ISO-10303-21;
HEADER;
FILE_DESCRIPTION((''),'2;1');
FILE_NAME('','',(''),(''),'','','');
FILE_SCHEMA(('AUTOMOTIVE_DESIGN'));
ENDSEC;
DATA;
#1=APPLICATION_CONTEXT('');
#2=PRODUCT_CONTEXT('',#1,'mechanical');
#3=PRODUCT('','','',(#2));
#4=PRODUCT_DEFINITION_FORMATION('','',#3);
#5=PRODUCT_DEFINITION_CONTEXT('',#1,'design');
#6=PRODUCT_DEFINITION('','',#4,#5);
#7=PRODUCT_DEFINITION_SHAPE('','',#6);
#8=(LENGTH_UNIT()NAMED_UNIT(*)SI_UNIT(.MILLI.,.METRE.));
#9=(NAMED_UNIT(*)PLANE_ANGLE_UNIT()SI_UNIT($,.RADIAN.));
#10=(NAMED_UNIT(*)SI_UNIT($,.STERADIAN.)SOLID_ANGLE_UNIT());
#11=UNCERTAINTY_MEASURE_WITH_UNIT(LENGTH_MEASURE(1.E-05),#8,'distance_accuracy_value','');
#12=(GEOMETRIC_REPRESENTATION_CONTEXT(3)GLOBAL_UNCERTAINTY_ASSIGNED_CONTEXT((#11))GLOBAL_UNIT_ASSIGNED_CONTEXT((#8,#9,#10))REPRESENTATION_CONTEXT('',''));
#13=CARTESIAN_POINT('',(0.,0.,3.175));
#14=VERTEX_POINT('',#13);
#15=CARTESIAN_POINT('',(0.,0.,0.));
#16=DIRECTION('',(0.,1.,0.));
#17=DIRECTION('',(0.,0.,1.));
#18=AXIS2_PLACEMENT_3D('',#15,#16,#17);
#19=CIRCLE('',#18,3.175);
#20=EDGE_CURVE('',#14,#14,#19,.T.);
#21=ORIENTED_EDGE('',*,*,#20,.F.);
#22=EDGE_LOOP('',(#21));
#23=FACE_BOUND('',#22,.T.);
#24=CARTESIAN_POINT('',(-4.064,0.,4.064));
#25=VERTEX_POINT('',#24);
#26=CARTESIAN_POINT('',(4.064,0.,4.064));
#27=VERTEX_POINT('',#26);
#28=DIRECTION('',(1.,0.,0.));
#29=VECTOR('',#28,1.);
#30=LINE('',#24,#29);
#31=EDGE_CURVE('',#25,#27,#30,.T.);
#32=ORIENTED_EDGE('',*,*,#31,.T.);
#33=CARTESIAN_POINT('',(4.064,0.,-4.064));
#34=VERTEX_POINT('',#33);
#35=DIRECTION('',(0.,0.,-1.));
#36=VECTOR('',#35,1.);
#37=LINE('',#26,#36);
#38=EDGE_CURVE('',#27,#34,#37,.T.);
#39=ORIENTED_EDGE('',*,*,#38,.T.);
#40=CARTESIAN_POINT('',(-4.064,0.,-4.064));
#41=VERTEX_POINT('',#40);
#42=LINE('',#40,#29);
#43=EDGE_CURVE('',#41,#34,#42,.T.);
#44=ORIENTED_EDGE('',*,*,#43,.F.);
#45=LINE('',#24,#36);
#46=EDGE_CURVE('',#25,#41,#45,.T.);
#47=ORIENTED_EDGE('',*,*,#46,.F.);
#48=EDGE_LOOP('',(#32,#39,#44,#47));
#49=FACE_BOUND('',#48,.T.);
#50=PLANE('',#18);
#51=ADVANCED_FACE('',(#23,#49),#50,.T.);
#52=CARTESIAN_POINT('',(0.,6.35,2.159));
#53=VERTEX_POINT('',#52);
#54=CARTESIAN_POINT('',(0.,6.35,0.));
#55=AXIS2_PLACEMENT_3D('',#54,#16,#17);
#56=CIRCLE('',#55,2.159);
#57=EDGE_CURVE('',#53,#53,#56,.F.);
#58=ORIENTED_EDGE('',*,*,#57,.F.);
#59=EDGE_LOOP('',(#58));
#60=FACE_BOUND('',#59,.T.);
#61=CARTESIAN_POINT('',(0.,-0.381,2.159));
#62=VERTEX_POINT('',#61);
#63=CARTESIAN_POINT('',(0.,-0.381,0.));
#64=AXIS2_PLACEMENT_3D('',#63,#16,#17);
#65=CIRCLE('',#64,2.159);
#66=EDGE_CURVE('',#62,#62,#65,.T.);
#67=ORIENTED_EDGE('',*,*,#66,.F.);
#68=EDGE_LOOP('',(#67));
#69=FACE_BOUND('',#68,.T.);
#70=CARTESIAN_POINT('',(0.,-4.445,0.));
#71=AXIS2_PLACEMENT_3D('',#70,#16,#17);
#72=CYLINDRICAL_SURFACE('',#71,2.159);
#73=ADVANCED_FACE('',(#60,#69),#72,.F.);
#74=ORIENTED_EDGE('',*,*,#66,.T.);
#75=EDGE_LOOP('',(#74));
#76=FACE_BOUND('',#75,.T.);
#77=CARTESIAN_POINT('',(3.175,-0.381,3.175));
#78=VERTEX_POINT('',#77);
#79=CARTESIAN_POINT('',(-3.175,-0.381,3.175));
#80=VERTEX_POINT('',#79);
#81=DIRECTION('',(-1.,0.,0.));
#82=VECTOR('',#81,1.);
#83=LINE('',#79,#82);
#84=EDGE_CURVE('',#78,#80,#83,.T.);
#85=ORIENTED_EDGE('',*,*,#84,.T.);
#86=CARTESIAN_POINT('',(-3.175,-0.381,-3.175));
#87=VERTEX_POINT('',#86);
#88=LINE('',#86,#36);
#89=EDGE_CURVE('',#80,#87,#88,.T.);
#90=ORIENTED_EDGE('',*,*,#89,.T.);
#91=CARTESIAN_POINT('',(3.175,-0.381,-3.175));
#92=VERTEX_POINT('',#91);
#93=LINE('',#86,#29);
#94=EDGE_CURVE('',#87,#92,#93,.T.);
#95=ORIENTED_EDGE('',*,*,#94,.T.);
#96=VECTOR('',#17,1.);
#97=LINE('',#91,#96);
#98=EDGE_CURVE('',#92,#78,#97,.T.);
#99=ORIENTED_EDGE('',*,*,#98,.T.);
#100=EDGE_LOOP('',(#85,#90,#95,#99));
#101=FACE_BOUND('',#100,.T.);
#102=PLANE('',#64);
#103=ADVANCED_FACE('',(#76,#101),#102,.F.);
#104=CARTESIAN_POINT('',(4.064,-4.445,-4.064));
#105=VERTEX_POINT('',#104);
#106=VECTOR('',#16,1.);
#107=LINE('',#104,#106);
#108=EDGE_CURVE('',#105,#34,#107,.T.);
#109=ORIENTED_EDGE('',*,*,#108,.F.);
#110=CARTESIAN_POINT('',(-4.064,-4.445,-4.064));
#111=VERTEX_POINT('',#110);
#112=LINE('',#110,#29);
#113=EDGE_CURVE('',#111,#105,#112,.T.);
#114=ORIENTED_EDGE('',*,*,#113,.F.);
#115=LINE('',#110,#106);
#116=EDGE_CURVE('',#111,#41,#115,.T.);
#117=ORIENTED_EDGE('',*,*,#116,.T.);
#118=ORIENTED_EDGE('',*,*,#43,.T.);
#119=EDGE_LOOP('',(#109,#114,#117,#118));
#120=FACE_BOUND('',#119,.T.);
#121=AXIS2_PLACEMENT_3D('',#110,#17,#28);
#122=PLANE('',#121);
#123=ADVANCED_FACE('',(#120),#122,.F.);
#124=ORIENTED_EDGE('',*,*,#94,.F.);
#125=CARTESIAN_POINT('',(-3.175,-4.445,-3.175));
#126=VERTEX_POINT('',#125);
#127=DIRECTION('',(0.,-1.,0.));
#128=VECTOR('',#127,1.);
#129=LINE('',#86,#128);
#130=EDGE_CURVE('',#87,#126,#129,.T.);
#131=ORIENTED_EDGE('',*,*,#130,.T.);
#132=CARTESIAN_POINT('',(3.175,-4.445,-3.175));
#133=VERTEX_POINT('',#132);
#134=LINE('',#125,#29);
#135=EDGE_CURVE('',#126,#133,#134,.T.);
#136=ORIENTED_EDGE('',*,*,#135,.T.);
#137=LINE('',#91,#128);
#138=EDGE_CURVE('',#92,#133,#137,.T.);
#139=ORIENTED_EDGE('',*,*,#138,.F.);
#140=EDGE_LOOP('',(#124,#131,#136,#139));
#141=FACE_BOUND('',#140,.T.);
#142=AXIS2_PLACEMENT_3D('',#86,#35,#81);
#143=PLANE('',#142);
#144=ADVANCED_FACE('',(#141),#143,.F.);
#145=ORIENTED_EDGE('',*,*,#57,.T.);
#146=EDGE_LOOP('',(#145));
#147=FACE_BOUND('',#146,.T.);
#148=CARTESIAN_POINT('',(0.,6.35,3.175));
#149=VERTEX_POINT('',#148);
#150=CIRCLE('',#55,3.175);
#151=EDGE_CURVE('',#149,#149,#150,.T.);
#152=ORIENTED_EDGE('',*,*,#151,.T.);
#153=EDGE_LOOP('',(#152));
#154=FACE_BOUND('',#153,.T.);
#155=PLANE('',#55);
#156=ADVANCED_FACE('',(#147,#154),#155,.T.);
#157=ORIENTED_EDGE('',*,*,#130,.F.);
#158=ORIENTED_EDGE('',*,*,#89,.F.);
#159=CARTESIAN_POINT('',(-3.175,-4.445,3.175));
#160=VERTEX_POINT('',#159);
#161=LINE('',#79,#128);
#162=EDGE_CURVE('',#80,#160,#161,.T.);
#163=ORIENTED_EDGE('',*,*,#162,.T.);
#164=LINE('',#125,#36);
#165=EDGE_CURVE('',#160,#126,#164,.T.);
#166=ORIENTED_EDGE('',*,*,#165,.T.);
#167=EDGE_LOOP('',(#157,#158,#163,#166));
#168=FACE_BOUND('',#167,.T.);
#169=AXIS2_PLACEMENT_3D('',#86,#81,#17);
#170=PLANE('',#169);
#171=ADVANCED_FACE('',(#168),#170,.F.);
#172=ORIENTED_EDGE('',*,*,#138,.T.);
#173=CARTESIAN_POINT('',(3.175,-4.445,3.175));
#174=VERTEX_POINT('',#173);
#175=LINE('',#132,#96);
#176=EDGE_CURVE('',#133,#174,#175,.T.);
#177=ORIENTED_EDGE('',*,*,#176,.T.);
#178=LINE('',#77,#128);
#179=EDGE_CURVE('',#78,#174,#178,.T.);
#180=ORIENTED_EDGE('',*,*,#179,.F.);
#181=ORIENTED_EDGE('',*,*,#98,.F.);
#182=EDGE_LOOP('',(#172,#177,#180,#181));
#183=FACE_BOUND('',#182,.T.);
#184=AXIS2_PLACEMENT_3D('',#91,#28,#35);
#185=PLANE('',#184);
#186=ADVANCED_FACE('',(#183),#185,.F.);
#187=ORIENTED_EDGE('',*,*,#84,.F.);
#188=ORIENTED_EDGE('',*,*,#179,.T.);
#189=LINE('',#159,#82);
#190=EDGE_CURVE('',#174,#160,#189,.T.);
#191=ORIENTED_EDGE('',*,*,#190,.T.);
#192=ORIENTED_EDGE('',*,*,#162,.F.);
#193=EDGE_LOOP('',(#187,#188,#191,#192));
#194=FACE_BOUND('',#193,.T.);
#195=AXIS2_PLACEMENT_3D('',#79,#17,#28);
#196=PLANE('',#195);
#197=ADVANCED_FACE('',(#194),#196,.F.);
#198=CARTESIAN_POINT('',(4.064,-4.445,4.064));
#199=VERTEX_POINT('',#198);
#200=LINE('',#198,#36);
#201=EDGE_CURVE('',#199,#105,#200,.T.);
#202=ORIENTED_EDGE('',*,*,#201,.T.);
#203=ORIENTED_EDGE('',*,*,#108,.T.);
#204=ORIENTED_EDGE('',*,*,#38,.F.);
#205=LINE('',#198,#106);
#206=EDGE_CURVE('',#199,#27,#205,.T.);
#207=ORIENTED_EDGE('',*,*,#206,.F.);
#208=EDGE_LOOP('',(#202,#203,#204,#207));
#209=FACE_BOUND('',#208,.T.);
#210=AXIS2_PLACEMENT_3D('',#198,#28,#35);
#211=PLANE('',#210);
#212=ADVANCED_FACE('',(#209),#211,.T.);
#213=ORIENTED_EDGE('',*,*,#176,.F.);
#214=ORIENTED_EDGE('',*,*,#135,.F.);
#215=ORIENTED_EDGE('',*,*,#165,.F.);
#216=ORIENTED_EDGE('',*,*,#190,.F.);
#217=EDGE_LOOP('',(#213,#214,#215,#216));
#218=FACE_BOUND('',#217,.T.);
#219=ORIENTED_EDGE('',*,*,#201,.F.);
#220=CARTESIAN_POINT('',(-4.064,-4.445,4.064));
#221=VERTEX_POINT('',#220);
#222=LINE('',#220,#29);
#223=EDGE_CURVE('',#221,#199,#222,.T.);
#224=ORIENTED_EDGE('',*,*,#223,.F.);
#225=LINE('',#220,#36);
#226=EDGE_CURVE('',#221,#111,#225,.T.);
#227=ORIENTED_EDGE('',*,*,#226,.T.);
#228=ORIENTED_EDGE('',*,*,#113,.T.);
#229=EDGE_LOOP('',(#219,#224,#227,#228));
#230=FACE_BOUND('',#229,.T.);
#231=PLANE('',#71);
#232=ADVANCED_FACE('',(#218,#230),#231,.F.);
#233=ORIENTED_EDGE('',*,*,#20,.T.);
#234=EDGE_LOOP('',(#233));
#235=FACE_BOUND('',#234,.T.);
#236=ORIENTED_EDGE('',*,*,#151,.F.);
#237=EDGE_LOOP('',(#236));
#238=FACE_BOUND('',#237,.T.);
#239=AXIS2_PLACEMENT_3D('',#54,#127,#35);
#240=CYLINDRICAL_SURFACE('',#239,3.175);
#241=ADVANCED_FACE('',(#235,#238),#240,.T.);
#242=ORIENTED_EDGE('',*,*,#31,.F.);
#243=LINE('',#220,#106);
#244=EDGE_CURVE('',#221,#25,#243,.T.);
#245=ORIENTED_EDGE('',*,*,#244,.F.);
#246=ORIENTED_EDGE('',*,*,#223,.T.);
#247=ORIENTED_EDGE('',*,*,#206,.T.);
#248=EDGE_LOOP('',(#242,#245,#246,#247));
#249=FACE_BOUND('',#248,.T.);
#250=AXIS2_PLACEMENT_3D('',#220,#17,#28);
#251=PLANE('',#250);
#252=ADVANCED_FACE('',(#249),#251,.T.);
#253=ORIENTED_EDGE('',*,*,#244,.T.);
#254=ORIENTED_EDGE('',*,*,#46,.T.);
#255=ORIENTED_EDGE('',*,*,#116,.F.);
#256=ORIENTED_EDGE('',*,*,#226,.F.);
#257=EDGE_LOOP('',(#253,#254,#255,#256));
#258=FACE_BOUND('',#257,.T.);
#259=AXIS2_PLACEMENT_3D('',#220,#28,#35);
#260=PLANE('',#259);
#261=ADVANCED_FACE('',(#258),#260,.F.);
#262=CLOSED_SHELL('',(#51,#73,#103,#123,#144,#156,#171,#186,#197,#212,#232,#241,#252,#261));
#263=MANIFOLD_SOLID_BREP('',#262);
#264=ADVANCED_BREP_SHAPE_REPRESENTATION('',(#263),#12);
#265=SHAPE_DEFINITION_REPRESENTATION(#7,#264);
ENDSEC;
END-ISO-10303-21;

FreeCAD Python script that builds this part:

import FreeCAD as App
import Part
import Sketcher
from FreeCAD import Vector
Q = App.Units.Quantity

doc = App.newDocument("Part")
body = doc.addObject("PartDesign::Body", "Body")

# Sketch on XZ plane
sketch1 = body.newObject("Sketcher::SketchObject", "Sketch")
sketch1.AttachmentSupport = (doc.getObject("XZ_Plane"), [""])
sketch1.MapMode = "FlatFace"
sketch1.addGeometry([
    Part.LineSegment(Vector(-4, -4, 0), Vector(-4, 4, 0)),
    Part.LineSegment(Vector(-4, 4, 0), Vector(4, 4, 0)),
    Part.LineSegment(Vector(4, 4, 0), Vector(4, -4, 0)),
    Part.LineSegment(Vector(4, -4, 0), Vector(-4, -4, 0)),
], False)
sketch1.addConstraint([
    Sketcher.Constraint("Coincident", 0, 2, 1, 1),
    Sketcher.Constraint("Coincident", 1, 2, 2, 1),
    Sketcher.Constraint("Coincident", 2, 2, 3, 1),
    Sketcher.Constraint("Coincident", 3, 2, 0, 1),
    Sketcher.Constraint("Vertical", 0),
    Sketcher.Constraint("Horizontal", 1),
    Sketcher.Constraint("Vertical", 2),
    Sketcher.Constraint("Horizontal", 3),
    Sketcher.Constraint("Symmetric", 0, 2, 2, 2, -1, 1),
    Sketcher.Constraint("Equal", 3, 0),
    Sketcher.Constraint("DistanceX", 1, 1, 1, 2, Q("0.32 in")),
])
pad1 = body.newObject("PartDesign::Pad", "Pad")
pad1.Profile = sketch1
pad1.Length = Q("0.175 in")

# Sketch on XZ plane
sketch2 = body.newObject("Sketcher::SketchObject", "Sketch001")
sketch2.AttachmentSupport = (doc.getObject("XZ_Plane"), [""])
sketch2.MapMode = "FlatFace"
sketch2.AttachmentOffset = App.Placement(Vector(0, 0, 0.175 * 25.4), App.Rotation())
sketch2.addGeometry([
    Part.LineSegment(Vector(-3, 3, 0), Vector(-3, -3, 0)),
    Part.LineSegment(Vector(-3, -3, 0), Vector(3, -3, 0)),
    Part.LineSegment(Vector(3, -3, 0), Vector(3, 3, 0)),
    Part.LineSegment(Vector(3, 3, 0), Vector(-3, 3, 0)),
], False)
sketch2.addConstraint([
    Sketcher.Constraint("Coincident", 0, 2, 1, 1),
    Sketcher.Constraint("Coincident", 1, 2, 2, 1),
    Sketcher.Constraint("Coincident", 2, 2, 3, 1),
    Sketcher.Constraint("Coincident", 3, 2, 0, 1),
    Sketcher.Constraint("Vertical", 0),
    Sketcher.Constraint("Horizontal", 1),
    Sketcher.Constraint("Vertical", 2),
    Sketcher.Constraint("Horizontal", 3),
    Sketcher.Constraint("Symmetric", 0, 2, 2, 2, -1, 1),
    Sketcher.Constraint("Equal", 3, 0),
    Sketcher.Constraint("DistanceX", 1, 1, 1, 2, Q("0.25 in")),
])
pocket1 = body.newObject("PartDesign::Pocket", "Pocket")
pocket1.Profile = sketch2
pocket1.Length = Q("0.16 in")

# Sketch on XZ plane
sketch3 = body.newObject("Sketcher::SketchObject", "Sketch002")
sketch3.AttachmentSupport = (doc.getObject("XZ_Plane"), [""])
sketch3.MapMode = "FlatFace"
sketch3.addGeometry(Part.Circle(Vector(0, 0, 0), Vector(0, 0, 1), 2.2), False)
sketch3.addConstraint([
    Sketcher.Constraint("Coincident", 0, 3, -1, 1),
    Sketcher.Constraint("Diameter", 0, Q("0.17 in")),
])
pocket2 = body.newObject("PartDesign::Pocket", "Pocket001")
pocket2.Profile = sketch3
pocket2.Type = "ThroughAll"
pocket2.Reversed = True

# Sketch on XZ plane
sketch4 = body.newObject("Sketcher::SketchObject", "Sketch003")
sketch4.AttachmentSupport = (doc.getObject("XZ_Plane"), [""])
sketch4.MapMode = "FlatFace"
sketch4.AttachmentOffset = App.Placement(Vector(0, 0, -0.25 * 25.4), App.Rotation())
sketch4.addGeometry([
    Part.Circle(Vector(0, 0, 0), Vector(0, 0, 1), 3.2),
    Part.Circle(Vector(0, 0, 0), Vector(0, 0, 1), 2.2),
], False)
sketch4.addConstraint([
    Sketcher.Constraint("Coincident", 0, 3, -1, 1),
    Sketcher.Constraint("Coincident", 1, 3, -1, 1),
    Sketcher.Constraint("Diameter", 0, Q("0.25 in")),
    Sketcher.Constraint("Diameter", 1, Q("0.17 in")),
])
pad2 = body.newObject("PartDesign::Pad", "Pad001")
pad2.Profile = sketch4
pad2.Length = Q("0.25 in")

doc.recompute()
